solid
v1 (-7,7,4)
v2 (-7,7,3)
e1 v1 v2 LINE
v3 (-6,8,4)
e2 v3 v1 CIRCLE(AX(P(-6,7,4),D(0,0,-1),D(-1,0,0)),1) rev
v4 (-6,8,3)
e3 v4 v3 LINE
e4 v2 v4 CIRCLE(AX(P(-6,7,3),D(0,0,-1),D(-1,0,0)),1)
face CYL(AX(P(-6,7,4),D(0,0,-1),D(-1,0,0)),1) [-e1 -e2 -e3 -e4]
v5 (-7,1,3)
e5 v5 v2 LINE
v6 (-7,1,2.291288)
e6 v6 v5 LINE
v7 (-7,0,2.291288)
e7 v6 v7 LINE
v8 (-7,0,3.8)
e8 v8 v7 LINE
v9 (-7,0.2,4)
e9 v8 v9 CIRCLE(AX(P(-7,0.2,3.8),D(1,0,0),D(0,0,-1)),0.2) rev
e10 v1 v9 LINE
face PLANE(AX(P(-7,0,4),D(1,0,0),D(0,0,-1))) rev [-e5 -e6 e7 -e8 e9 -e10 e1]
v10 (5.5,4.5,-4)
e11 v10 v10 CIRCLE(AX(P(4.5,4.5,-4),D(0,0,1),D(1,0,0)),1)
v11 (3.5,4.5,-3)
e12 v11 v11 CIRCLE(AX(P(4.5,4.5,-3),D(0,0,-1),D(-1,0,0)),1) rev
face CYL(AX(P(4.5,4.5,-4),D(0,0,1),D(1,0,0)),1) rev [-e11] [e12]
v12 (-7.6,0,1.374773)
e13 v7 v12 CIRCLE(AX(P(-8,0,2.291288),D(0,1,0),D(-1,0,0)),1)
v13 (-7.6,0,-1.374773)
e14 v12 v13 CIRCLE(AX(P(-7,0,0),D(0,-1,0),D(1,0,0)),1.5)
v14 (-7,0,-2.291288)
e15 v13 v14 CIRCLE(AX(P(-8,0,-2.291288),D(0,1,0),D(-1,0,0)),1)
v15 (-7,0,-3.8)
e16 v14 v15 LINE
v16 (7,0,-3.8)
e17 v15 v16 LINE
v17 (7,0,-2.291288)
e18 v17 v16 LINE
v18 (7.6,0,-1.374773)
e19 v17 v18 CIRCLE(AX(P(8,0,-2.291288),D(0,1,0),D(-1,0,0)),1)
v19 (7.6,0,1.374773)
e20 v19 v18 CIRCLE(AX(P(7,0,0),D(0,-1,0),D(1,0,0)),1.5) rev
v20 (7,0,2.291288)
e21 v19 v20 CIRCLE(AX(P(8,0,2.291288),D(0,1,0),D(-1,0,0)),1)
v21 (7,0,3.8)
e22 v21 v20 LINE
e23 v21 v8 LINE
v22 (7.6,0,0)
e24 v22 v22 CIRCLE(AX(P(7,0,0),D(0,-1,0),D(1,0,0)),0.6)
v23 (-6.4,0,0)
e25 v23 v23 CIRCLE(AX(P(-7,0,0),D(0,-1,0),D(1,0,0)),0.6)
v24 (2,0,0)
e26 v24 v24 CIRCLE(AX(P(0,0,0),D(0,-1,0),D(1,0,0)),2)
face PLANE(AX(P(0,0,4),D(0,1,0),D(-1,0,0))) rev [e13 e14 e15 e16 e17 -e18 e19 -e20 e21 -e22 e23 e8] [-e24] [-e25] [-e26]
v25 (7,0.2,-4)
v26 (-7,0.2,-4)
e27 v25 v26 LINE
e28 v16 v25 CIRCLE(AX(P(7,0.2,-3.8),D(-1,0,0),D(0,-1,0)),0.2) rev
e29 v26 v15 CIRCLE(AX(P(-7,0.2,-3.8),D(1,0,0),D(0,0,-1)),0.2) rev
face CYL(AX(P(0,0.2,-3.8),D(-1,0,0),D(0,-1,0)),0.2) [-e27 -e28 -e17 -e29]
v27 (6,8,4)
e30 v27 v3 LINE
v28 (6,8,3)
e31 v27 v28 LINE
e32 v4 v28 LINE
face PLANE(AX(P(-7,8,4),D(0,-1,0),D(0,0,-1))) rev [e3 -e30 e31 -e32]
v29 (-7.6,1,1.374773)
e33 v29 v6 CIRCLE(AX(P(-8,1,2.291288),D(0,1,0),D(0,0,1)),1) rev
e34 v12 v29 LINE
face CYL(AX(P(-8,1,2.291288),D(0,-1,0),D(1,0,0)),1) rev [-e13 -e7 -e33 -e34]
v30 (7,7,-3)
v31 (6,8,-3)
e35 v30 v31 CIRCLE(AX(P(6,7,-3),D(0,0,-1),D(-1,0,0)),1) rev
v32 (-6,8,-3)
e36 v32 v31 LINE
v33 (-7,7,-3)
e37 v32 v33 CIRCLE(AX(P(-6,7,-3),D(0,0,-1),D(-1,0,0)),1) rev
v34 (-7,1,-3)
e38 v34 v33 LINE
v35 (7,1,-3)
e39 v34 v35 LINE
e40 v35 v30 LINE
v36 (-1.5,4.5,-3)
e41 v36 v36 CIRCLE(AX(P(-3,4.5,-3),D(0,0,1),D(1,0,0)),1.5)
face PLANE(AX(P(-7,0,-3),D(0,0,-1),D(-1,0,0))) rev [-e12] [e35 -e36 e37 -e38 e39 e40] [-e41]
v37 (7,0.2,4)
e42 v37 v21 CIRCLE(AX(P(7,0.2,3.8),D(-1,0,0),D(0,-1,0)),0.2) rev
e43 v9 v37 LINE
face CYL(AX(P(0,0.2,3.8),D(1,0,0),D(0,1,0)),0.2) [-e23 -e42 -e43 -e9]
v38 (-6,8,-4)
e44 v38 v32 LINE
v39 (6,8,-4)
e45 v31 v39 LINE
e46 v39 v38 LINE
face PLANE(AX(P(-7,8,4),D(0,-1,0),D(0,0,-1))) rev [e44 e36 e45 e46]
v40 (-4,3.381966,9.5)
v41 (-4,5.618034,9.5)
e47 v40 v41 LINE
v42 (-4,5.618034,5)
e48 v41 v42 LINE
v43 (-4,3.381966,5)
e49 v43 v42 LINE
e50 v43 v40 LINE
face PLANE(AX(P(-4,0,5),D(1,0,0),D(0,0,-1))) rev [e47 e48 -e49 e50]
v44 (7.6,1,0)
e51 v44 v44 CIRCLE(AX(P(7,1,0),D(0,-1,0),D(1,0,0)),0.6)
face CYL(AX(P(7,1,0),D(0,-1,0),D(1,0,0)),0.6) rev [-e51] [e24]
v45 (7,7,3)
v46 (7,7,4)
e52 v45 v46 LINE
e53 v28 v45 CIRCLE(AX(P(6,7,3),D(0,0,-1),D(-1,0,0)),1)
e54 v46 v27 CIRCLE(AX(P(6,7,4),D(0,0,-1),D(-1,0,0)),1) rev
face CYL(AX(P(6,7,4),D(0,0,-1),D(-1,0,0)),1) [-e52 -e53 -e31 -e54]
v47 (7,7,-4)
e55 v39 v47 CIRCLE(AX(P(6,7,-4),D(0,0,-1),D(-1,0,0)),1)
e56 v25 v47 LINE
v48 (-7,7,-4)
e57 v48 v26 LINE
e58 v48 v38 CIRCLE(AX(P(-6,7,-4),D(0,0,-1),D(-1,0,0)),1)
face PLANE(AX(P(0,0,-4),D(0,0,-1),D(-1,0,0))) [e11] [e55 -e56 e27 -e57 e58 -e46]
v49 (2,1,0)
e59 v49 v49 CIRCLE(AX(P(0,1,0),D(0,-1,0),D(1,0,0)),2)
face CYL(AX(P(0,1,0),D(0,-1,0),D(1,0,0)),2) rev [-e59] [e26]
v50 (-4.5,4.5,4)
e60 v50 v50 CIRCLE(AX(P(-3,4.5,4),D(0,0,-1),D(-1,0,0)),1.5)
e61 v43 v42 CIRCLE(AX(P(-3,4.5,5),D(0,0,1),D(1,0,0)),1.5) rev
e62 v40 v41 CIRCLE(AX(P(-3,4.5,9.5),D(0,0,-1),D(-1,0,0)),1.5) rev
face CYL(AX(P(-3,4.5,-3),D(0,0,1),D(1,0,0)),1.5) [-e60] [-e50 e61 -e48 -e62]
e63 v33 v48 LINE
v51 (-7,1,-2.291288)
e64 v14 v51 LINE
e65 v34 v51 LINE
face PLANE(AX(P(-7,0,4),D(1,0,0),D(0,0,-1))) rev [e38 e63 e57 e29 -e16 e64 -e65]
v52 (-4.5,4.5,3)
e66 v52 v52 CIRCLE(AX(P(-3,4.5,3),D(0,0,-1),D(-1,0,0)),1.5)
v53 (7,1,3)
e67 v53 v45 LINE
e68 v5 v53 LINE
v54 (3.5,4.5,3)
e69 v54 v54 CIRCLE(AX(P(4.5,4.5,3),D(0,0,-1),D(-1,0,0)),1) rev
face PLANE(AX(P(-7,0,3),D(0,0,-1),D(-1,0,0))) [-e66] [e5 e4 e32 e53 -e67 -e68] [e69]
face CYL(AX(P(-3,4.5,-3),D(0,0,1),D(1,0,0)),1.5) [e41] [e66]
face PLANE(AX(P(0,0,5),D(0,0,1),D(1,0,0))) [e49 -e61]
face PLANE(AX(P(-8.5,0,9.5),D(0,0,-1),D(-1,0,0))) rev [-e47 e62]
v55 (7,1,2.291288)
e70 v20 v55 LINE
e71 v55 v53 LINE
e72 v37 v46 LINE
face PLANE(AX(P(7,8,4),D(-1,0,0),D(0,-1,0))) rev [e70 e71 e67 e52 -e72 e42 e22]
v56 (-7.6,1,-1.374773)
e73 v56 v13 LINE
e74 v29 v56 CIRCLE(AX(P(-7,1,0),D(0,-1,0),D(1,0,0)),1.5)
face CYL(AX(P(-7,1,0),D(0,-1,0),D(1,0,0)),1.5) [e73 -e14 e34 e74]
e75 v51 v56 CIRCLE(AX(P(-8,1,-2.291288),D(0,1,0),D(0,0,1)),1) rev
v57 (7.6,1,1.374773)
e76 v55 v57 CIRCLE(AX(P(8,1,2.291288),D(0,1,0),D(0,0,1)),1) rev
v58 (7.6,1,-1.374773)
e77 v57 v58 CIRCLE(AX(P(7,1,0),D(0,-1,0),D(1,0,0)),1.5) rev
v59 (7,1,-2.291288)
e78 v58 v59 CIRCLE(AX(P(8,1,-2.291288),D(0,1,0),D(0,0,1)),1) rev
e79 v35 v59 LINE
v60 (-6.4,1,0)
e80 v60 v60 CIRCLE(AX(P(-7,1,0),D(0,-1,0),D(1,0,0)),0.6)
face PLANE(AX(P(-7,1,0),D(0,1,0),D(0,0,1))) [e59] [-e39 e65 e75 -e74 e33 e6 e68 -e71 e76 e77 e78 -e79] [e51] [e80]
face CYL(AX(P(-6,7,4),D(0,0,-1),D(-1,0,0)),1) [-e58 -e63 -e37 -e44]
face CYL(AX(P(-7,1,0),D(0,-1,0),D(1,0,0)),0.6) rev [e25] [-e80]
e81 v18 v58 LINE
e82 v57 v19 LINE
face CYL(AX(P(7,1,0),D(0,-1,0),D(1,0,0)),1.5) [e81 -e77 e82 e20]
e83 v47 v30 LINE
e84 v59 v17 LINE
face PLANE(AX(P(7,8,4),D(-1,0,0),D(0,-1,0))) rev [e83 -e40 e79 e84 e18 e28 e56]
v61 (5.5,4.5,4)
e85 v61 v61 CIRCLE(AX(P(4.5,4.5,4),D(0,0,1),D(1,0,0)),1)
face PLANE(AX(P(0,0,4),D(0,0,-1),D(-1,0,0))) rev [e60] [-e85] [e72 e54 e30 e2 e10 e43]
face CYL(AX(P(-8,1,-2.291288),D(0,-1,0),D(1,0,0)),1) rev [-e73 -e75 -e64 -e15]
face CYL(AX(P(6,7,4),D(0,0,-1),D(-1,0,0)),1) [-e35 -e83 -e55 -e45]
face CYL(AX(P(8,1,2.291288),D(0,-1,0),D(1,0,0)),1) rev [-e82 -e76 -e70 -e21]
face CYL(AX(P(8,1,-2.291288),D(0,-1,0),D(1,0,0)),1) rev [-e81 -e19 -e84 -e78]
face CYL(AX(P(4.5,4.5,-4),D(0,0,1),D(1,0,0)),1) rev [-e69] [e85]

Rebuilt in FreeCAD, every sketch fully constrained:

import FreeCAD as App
import Part
import Sketcher


def edges_at(feature, points):
    """Names of the edges that pass closest to the given points."""
    edges = feature.Shape.Edges
    near = lambda p: min(range(len(edges)), key=lambda i: edges[i].distToShape(Part.Vertex(*p))[0])
    return sorted({f"Edge{near(p) + 1}" for p in points})

doc = App.newDocument("Part")
body = doc.addObject("PartDesign::Body", "Body")

sketch1 = body.newObject("Sketcher::SketchObject", "Sketch")
sketch1.AttachmentSupport = (doc.getObject("XY_Plane"), [""])
sketch1.MapMode = "FlatFace"
sketch1.addGeometry([
    Part.LineSegment(App.Vector(-7, 0, 0), App.Vector(7, 0, 0)),
    Part.LineSegment(App.Vector(7, 0, 0), App.Vector(7, 8, 0)),
    Part.LineSegment(App.Vector(7, 8, 0), App.Vector(-7, 8, 0)),
    Part.LineSegment(App.Vector(-7, 8, 0), App.Vector(-7, 0, 0)),
], False)
sketch1.addConstraint([
    Sketcher.Constraint("Coincident", 0, 2, 1, 1),
    Sketcher.Constraint("Coincident", 1, 2, 2, 1),
    Sketcher.Constraint("Coincident", 2, 2, 3, 1),
    Sketcher.Constraint("Coincident", 3, 2, 0, 1),
    Sketcher.Constraint("Horizontal", 0),
    Sketcher.Constraint("Vertical", 1),
    Sketcher.Constraint("Horizontal", 2),
    Sketcher.Constraint("Vertical", 3),
    Sketcher.Constraint("Symmetric", 0, 2, 3, 2, -1, 1),
    Sketcher.Constraint("DistanceX", 0, 1, 0, 2, 14.0),
    Sketcher.Constraint("DistanceY", 1, 1, 1, 2, 8.0),
])
pad1 = body.newObject("PartDesign::Pad", "Pad")
pad1.Profile = sketch1
pad1.Length = 8
pad1.Midplane = True

sketch2 = body.newObject("Sketcher::SketchObject", "Sketch001")
sketch2.AttachmentSupport = (doc.getObject("XY_Plane"), [""])
sketch2.MapMode = "FlatFace"
sketch2.addGeometry(Part.Circle(App.Vector(4.5, 4.5, 0), App.Vector(0, 0, 1), 1), False)
sketch2.addConstraint([
    Sketcher.Constraint("Diameter", 0, 2.0),
    Sketcher.Constraint("DistanceX", -1, 1, 0, 3, 4.5),
    Sketcher.Constraint("DistanceY", -1, 1, 0, 3, 4.5),
])
pocket1 = body.newObject("PartDesign::Pocket", "Pocket")
pocket1.Profile = sketch2
pocket1.Type = "ThroughAll"
pocket1.Midplane = True

sketch3 = body.newObject("Sketcher::SketchObject", "Sketch002")
sketch3.AttachmentSupport = (doc.getObject("YZ_Plane"), [""])
sketch3.MapMode = "FlatFace"
sketch3.addGeometry([
    Part.LineSegment(App.Vector(10, 3, 0), App.Vector(1, 3, 0)),
    Part.LineSegment(App.Vector(1, 3, 0), App.Vector(1, -3, 0)),
    Part.LineSegment(App.Vector(1, -3, 0), App.Vector(10, -3, 0)),
    Part.LineSegment(App.Vector(10, -3, 0), App.Vector(10, 3, 0)),
], False)
sketch3.addConstraint([
    Sketcher.Constraint("Coincident", 0, 2, 1, 1),
    Sketcher.Constraint("Coincident", 1, 2, 2, 1),
    Sketcher.Constraint("Coincident", 2, 2, 3, 1),
    Sketcher.Constraint("Coincident", 3, 2, 0, 1),
    Sketcher.Constraint("Horizontal", 0),
    Sketcher.Constraint("Vertical", 1),
    Sketcher.Constraint("Horizontal", 2),
    Sketcher.Constraint("Vertical", 3),
    Sketcher.Constraint("DistanceY", 1, 2, 1, 1, 6.0),
    Sketcher.Constraint("DistanceX", -1, 1, 0, 2, 1.0),
    Sketcher.Constraint("DistanceY", -1, 1, 0, 2, 3.0),
    Sketcher.Constraint("DistanceX", 0, 2, 0, 1, 8.732029),
])
pocket2 = body.newObject("PartDesign::Pocket", "Pocket001")
pocket2.Profile = sketch3
pocket2.Type = "ThroughAll"
pocket2.Midplane = True
doc.recompute()

fillet = body.newObject("PartDesign::Fillet", "Fillet")
fillet.Base = (pocket2, edges_at(pocket2, [(0, 0, 4), (0, 0, -4)]))
fillet.Radius = 0.2
doc.recompute()

fillet2 = body.newObject("PartDesign::Fillet", "Fillet001")
fillet2.Base = (fillet, edges_at(fillet, [
    (-7, 8, -3.5),
    (7, 8, -3.5),
    (-7, 8, 3.5),
    (7, 8, 3.5),
]))
fillet2.Radius = 1

sketch4 = body.newObject("Sketcher::SketchObject", "Sketch003")
sketch4.AttachmentSupport = (doc.getObject("XY_Plane"), [""])
sketch4.MapMode = "FlatFace"
sketch4.addGeometry(Part.Circle(App.Vector(-3, 4.5, 0), App.Vector(0, 0, 1), 1.5), False)
sketch4.addConstraint([
    Sketcher.Constraint("Diameter", 0, 3.0),
    Sketcher.Constraint("DistanceX", 0, 3, -1, 1, 3.0),
    Sketcher.Constraint("DistanceY", -1, 1, 0, 3, 4.5),
])
pad2 = body.newObject("PartDesign::Pad", "Pad001")
pad2.Profile = sketch4
pad2.Type = "TwoLengths"
pad2.Length = 14
pad2.Length2 = 3

sketch5 = body.newObject("Sketcher::SketchObject", "Sketch004")
sketch5.AttachmentSupport = (doc.getObject("XY_Plane"), [""])
sketch5.MapMode = "FlatFace"
sketch5.AttachmentOffset = App.Placement(App.Vector(0, 0, 14), App.Rotation())
sketch5.addGeometry([
    Part.LineSegment(App.Vector(-4, 6.1, 0), App.Vector(-5, 6.1, 0)),
    Part.LineSegment(App.Vector(-5, 6.1, 0), App.Vector(-5, 2.5, 0)),
    Part.LineSegment(App.Vector(-5, 2.5, 0), App.Vector(-4, 2.5, 0)),
    Part.LineSegment(App.Vector(-4, 2.5, 0), App.Vector(-4, 6.1, 0)),
], False)
sketch5.addConstraint([
    Sketcher.Constraint("Coincident", 0, 2, 1, 1),
    Sketcher.Constraint("Coincident", 1, 2, 2, 1),
    Sketcher.Constraint("Coincident", 2, 2, 3, 1),
    Sketcher.Constraint("Coincident", 3, 2, 0, 1),
    Sketcher.Constraint("Horizontal", 0),
    Sketcher.Constraint("Vertical", 1),
    Sketcher.Constraint("Horizontal", 2),
    Sketcher.Constraint("Vertical", 3),
    Sketcher.Constraint("DistanceX", 2, 2, -1, 1, 4.0),
    Sketcher.Constraint("DistanceY", -1, 1, 1, 2, 2.5),
    Sketcher.Constraint("DistanceX", 0, 2, 0, 1, 0.956444),
    Sketcher.Constraint("DistanceY", 1, 2, 1, 1, 3.560686),
])
pocket3 = body.newObject("PartDesign::Pocket", "Pocket002")
pocket3.Profile = sketch5
pocket3.Length = 9

sketch6 = body.newObject("Sketcher::SketchObject", "Sketch005")
sketch6.AttachmentSupport = (doc.getObject("XZ_Plane"), [""])
sketch6.MapMode = "FlatFace"
sketch6.addGeometry([
    Part.Circle(App.Vector(-7, 0, 0), App.Vector(0, 0, 1), 1.5),
    Part.Circle(App.Vector(7, 0, 0), App.Vector(0, 0, 1), 1.5),
], False)
sketch6.addConstraint([
    Sketcher.Constraint("Equal", 0, 1),
    Sketcher.Constraint("Symmetric", 0, 3, 1, 3, -1, 1),
    Sketcher.Constraint("PointOnObject", 0, 3, -1),
    Sketcher.Constraint("Diameter", 0, 3.0),
    Sketcher.Constraint("DistanceX", 0, 3, -1, 1, 7.0),
])
pad3 = body.newObject("PartDesign::Pad", "Pad002")
pad3.Profile = sketch6
pad3.Length = 1
pad3.Reversed = True

sketch7 = body.newObject("Sketcher::SketchObject", "Sketch006")
sketch7.AttachmentSupport = (doc.getObject("XZ_Plane"), [""])
sketch7.MapMode = "FlatFace"
sketch7.addGeometry([
    Part.Circle(App.Vector(-7, 0, 0), App.Vector(0, 0, 1), 0.6),
    Part.Circle(App.Vector(7, 0, 0), App.Vector(0, 0, 1), 0.6),
], False)
sketch7.addConstraint([
    Sketcher.Constraint("Equal", 0, 1),
    Sketcher.Constraint("Symmetric", 0, 3, 1, 3, -1, 1),
    Sketcher.Constraint("PointOnObject", 0, 3, -1),
    Sketcher.Constraint("Diameter", 0, 1.2),
    Sketcher.Constraint("DistanceX", 0, 3, -1, 1, 7.0),
])
pocket4 = body.newObject("PartDesign::Pocket", "Pocket003")
pocket4.Profile = sketch7
pocket4.Length = 1
doc.recompute()

fillet3 = body.newObject("PartDesign::Fillet", "Fillet002")
fillet3.Base = (pocket4, edges_at(pocket4, [
    (7, 0.5, -1.5),
    (7, 0.5, 1.5),
    (-7, 0.5, 1.5),
    (-7, 0.5, -1.5),
]))
fillet3.Radius = 1

sketch8 = body.newObject("Sketcher::SketchObject", "Sketch007")
sketch8.AttachmentSupport = (doc.getObject("XZ_Plane"), [""])
sketch8.MapMode = "FlatFace"
sketch8.addGeometry(Part.Circle(App.Vector(0, 0, 0), App.Vector(0, 0, 1), 2), False)
sketch8.addConstraint([
    Sketcher.Constraint("Coincident", 0, 3, -1, 1),
    Sketcher.Constraint("Diameter", 0, 4.0),
])
pocket5 = body.newObject("PartDesign::Pocket", "Pocket004")
pocket5.Profile = sketch8
pocket5.Length = 1

sketch9 = body.newObject("Sketcher::SketchObject", "Sketch008")
sketch9.AttachmentSupport = (doc.getObject("YZ_Plane"), [""])
sketch9.MapMode = "FlatFace"
sketch9.addGeometry([
    Part.LineSegment(App.Vector(7, 15, 0), App.Vector(0, 15, 0)),
    Part.LineSegment(App.Vector(0, 15, 0), App.Vector(0, 10, 0)),
    Part.LineSegment(App.Vector(0, 10, 0), App.Vector(7, 10, 0)),
    Part.LineSegment(App.Vector(7, 10, 0), App.Vector(7, 15, 0)),
], False)
sketch9.addConstraint([
    Sketcher.Constraint("Coincident", 0, 2, 1, 1),
    Sketcher.Constraint("Coincident", 1, 2, 2, 1),
    Sketcher.Constraint("Coincident", 2, 2, 3, 1),
    Sketcher.Constraint("Coincident", 3, 2, 0, 1),
    Sketcher.Constraint("Horizontal", 0),
    Sketcher.Constraint("Vertical", 1),
    Sketcher.Constraint("Horizontal", 2),
    Sketcher.Constraint("Vertical", 3),
    Sketcher.Constraint("DistanceY", -1, 1, 1, 2, 9.5),
    Sketcher.Constraint("DistanceX", 0, 2, 0, 1, 6.934922),
    Sketcher.Constraint("DistanceY", 1, 2, 1, 1, 5.922368),
    Sketcher.Constraint("DistanceX", -1, 1, 0, 2, 0.382649),
])
pocket6 = body.newObject("PartDesign::Pocket", "Pocket005")
pocket6.Profile = sketch9
pocket6.Type = "ThroughAll"

doc.recompute()
